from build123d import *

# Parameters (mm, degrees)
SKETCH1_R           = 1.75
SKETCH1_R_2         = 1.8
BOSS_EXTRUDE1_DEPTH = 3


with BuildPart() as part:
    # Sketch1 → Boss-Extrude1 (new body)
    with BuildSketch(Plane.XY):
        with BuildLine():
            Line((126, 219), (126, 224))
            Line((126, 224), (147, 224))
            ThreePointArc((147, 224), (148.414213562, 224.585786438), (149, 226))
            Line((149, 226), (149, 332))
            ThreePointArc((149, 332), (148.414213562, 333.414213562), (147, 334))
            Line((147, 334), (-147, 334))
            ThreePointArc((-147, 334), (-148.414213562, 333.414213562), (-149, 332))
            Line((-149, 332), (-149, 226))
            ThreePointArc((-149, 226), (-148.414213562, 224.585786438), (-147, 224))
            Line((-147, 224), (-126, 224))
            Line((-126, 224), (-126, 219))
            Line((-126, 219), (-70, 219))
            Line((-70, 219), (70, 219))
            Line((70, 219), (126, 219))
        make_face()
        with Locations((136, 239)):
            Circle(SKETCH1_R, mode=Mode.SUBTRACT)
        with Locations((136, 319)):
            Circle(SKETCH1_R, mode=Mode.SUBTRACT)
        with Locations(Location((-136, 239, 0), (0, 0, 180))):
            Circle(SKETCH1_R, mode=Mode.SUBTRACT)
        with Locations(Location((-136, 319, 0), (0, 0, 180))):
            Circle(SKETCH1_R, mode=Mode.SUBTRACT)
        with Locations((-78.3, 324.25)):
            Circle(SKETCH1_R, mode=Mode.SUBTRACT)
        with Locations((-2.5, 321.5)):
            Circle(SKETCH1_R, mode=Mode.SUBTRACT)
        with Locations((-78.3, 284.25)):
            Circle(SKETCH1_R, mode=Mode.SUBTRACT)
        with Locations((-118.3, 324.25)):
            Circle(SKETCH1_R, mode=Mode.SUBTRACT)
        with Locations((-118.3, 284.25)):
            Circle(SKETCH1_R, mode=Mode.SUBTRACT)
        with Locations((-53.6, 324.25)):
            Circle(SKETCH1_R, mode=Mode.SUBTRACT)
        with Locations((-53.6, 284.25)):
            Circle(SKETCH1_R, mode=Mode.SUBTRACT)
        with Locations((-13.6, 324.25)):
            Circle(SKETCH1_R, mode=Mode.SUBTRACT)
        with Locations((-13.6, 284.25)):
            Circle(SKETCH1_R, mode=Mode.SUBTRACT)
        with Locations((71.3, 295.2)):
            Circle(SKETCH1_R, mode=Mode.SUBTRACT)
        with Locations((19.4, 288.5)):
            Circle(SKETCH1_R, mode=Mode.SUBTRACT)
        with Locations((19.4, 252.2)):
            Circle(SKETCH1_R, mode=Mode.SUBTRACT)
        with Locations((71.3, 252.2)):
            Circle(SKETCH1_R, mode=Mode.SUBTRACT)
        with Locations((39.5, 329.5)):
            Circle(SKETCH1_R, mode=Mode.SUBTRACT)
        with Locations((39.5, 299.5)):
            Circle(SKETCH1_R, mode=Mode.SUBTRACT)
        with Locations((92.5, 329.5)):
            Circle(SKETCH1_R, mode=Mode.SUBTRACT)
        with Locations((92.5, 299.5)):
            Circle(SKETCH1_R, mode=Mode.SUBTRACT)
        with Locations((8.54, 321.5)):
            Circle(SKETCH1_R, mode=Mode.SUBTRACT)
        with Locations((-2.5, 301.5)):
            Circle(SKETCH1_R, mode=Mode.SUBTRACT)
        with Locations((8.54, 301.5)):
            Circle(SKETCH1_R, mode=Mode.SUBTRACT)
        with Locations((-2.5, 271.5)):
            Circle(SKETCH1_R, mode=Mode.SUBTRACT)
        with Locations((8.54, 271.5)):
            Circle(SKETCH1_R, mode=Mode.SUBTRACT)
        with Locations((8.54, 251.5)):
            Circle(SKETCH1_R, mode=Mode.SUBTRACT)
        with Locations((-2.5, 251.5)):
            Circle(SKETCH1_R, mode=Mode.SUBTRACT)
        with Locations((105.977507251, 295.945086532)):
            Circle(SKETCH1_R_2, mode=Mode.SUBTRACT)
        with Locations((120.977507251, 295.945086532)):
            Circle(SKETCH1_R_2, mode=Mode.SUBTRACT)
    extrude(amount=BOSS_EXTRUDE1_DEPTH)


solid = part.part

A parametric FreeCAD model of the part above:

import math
import FreeCAD as App
import Part
import Sketcher
Q = App.Units.Quantity

doc = App.newDocument("Part")
body = doc.addObject("PartDesign::Body", "Body")

# Sketch on XY plane
sketch1 = body.newObject("Sketcher::SketchObject", "Sketch")
sketch1.AttachmentSupport = (doc.getObject("XY_Plane"), [""])
sketch1.MapMode = "FlatFace"
sketch1.addGeometry(Part.LineSegment(App.Vector(126, 219, 0), App.Vector(126, 224, 0)), False)
sketch1.addGeometry(Part.LineSegment(App.Vector(126, 224, 0), App.Vector(147, 224, 0)), False)
sketch1.addGeometry(Part.ArcOfCircle(Part.Circle(App.Vector(147, 226, 0), App.Vector(0, 0, 1), 2), math.radians(-90), math.radians(0)), False)
sketch1.addGeometry(Part.LineSegment(App.Vector(149, 226, 0), App.Vector(149, 332, 0)), False)
sketch1.addGeometry(Part.ArcOfCircle(Part.Circle(App.Vector(147, 332, 0), App.Vector(0, 0, 1), 2), math.radians(0), math.radians(90)), False)
sketch1.addGeometry(Part.LineSegment(App.Vector(147, 334, 0), App.Vector(-147, 334, 0)), False)
sketch1.addGeometry(Part.ArcOfCircle(Part.Circle(App.Vector(-147, 332, 0), App.Vector(0, 0, 1), 2), math.radians(90), math.radians(180)), False)
sketch1.addGeometry(Part.LineSegment(App.Vector(-149, 332, 0), App.Vector(-149, 226, 0)), False)
sketch1.addGeometry(Part.ArcOfCircle(Part.Circle(App.Vector(-147, 226, 0), App.Vector(0, 0, 1), 2), math.radians(-180), math.radians(-90)), False)
sketch1.addGeometry(Part.LineSegment(App.Vector(-147, 224, 0), App.Vector(-126, 224, 0)), False)
sketch1.addGeometry(Part.LineSegment(App.Vector(-126, 224, 0), App.Vector(-126, 219, 0)), False)
sketch1.addGeometry(Part.LineSegment(App.Vector(-126, 219, 0), App.Vector(126, 219, 0)), False)
sketch1.addGeometry(Part.Circle(App.Vector(-136, 239, 0), App.Vector(0, 0, 1), 1.8), False)
sketch1.addGeometry(Part.Circle(App.Vector(-2.5, 251.5, 0), App.Vector(0, 0, 1), 1.8), False)
sketch1.addGeometry(Part.Circle(App.Vector(-2.5, 271.5, 0), App.Vector(0, 0, 1), 1.8), False)
sketch1.addGeometry(Part.Circle(App.Vector(8.5, 251.5, 0), App.Vector(0, 0, 1), 1.8), False)
sketch1.addGeometry(Part.Circle(App.Vector(19.4, 252.2, 0), App.Vector(0, 0, 1), 1.8), False)
sketch1.addGeometry(Part.Circle(App.Vector(136, 239, 0), App.Vector(0, 0, 1), 1.8), False)
sketch1.addGeometry(Part.Circle(App.Vector(71.3, 252.2, 0), App.Vector(0, 0, 1), 1.8), False)
sketch1.addGeometry(Part.Circle(App.Vector(8.5, 271.5, 0), App.Vector(0, 0, 1), 1.8), False)
sketch1.addGeometry(Part.Circle(App.Vector(-118.3, 284.2, 0), App.Vector(0, 0, 1), 1.8), False)
sketch1.addGeometry(Part.Circle(App.Vector(-78.3, 284.2, 0), App.Vector(0, 0, 1), 1.8), False)
sketch1.addGeometry(Part.Circle(App.Vector(-53.6, 284.2, 0), App.Vector(0, 0, 1), 1.8), False)
sketch1.addGeometry(Part.Circle(App.Vector(-13.6, 284.2, 0), App.Vector(0, 0, 1), 1.8), False)
sketch1.addGeometry(Part.Circle(App.Vector(-2.5, 301.5, 0), App.Vector(0, 0, 1), 1.8), False)
sketch1.addGeometry(Part.Circle(App.Vector(-136, 319, 0), App.Vector(0, 0, 1), 1.8), False)
sketch1.addGeometry(Part.Circle(App.Vector(-118.3, 324.2, 0), App.Vector(0, 0, 1), 1.8), False)
sketch1.addGeometry(Part.Circle(App.Vector(-78.3, 324.2, 0), App.Vector(0, 0, 1), 1.8), False)
sketch1.addGeometry(Part.Circle(App.Vector(-53.6, 324.2, 0), App.Vector(0, 0, 1), 1.8), False)
sketch1.addGeometry(Part.Circle(App.Vector(-2.5, 321.5, 0), App.Vector(0, 0, 1), 1.8), False)
sketch1.addGeometry(Part.Circle(App.Vector(-13.6, 324.2, 0), App.Vector(0, 0, 1), 1.8), False)
sketch1.addGeometry(Part.Circle(App.Vector(19.4, 288.5, 0), App.Vector(0, 0, 1), 1.8), False)
sketch1.addGeometry(Part.Circle(App.Vector(8.5, 301.5, 0), App.Vector(0, 0, 1), 1.8), False)
sketch1.addGeometry(Part.Circle(App.Vector(39.5, 299.5, 0), App.Vector(0, 0, 1), 1.8), False)
sketch1.addGeometry(Part.Circle(App.Vector(71.3, 295.2, 0), App.Vector(0, 0, 1), 1.8), False)
sketch1.addGeometry(Part.Circle(App.Vector(106, 295.9, 0), App.Vector(0, 0, 1), 1.8), False)
sketch1.addGeometry(Part.Circle(App.Vector(121, 295.9, 0), App.Vector(0, 0, 1), 1.8), False)
sketch1.addGeometry(Part.Circle(App.Vector(92.5, 299.5, 0), App.Vector(0, 0, 1), 1.8), False)
sketch1.addGeometry(Part.Circle(App.Vector(8.5, 321.5, 0), App.Vector(0, 0, 1), 1.8), False)
sketch1.addGeometry(Part.Circle(App.Vector(39.5, 329.5, 0), App.Vector(0, 0, 1), 1.8), False)
sketch1.addGeometry(Part.Circle(App.Vector(136, 319, 0), App.Vector(0, 0, 1), 1.8), False)
sketch1.addGeometry(Part.Circle(App.Vector(92.5, 329.5, 0), App.Vector(0, 0, 1), 1.8), False)
sketch1.addConstraint(Sketcher.Constraint("Coincident", 0, 2, 1, 1))
sketch1.addConstraint(Sketcher.Constraint("Tangent", 1, 2, 2, 1))
sketch1.addConstraint(Sketcher.Constraint("Tangent", 2, 2, 3, 1))
sketch1.addConstraint(Sketcher.Constraint("Tangent", 3, 2, 4, 1))
sketch1.addConstraint(Sketcher.Constraint("Tangent", 4, 2, 5, 1))
sketch1.addConstraint(Sketcher.Constraint("Tangent", 5, 2, 6, 1))
sketch1.addConstraint(Sketcher.Constraint("Tangent", 6, 2, 7, 1))
sketch1.addConstraint(Sketcher.Constraint("Tangent", 7, 2, 8, 1))
sketch1.addConstraint(Sketcher.Constraint("Tangent", 8, 2, 9, 1))
sketch1.addConstraint(Sketcher.Constraint("Coincident", 9, 2, 10, 1))
sketch1.addConstraint(Sketcher.Constraint("Coincident", 10, 2, 11, 1))
sketch1.addConstraint(Sketcher.Constraint("Coincident", 11, 2, 0, 1))
sketch1.addConstraint(Sketcher.Constraint("Vertical", 0))
sketch1.addConstraint(Sketcher.Constraint("Horizontal", 1))
sketch1.addConstraint(Sketcher.Constraint("Vertical", 3))
sketch1.addConstraint(Sketcher.Constraint("Horizontal", 5))
sketch1.addConstraint(Sketcher.Constraint("Vertical", 7))
sketch1.addConstraint(Sketcher.Constraint("Horizontal", 9))
sketch1.addConstraint(Sketcher.Constraint("Vertical", 10))
sketch1.addConstraint(Sketcher.Constraint("Horizontal", 11))
sketch1.addConstraint(Sketcher.Constraint("Equal", 2, 4))
sketch1.addConstraint(Sketcher.Constraint("Equal", 4, 6))
sketch1.addConstraint(Sketcher.Constraint("Equal", 6, 8))
sketch1.addConstraint(Sketcher.Constraint("Equal", 12, 13))
sketch1.addConstraint(Sketcher.Constraint("Equal", 13, 14))
sketch1.addConstraint(Sketcher.Constraint("Equal", 14, 15))
sketch1.addConstraint(Sketcher.Constraint("Equal", 15, 16))
sketch1.addConstraint(Sketcher.Constraint("Equal", 16, 17))
sketch1.addConstraint(Sketcher.Constraint("Equal", 17, 18))
sketch1.addConstraint(Sketcher.Constraint("Equal", 18, 19))
sketch1.addConstraint(Sketcher.Constraint("Equal", 19, 20))
sketch1.addConstraint(Sketcher.Constraint("Equal", 20, 21))
sketch1.addConstraint(Sketcher.Constraint("Equal", 21, 22))
sketch1.addConstraint(Sketcher.Constraint("Equal", 22, 23))
sketch1.addConstraint(Sketcher.Constraint("Equal", 23, 24))
sketch1.addConstraint(Sketcher.Constraint("Equal", 24, 25))
sketch1.addConstraint(Sketcher.Constraint("Equal", 25, 26))
sketch1.addConstraint(Sketcher.Constraint("Equal", 26, 27))
sketch1.addConstraint(Sketcher.Constraint("Equal", 27, 28))
sketch1.addConstraint(Sketcher.Constraint("Equal", 28, 29))
sketch1.addConstraint(Sketcher.Constraint("Equal", 29, 30))
sketch1.addConstraint(Sketcher.Constraint("Equal", 30, 31))
sketch1.addConstraint(Sketcher.Constraint("Equal", 31, 32))
sketch1.addConstraint(Sketcher.Constraint("Equal", 32, 33))
sketch1.addConstraint(Sketcher.Constraint("Equal", 33, 34))
sketch1.addConstraint(Sketcher.Constraint("Equal", 35, 36))
sketch1.addConstraint(Sketcher.Constraint("Equal", 34, 37))
sketch1.addConstraint(Sketcher.Constraint("Equal", 37, 38))
sketch1.addConstraint(Sketcher.Constraint("Equal", 38, 39))
sketch1.addConstraint(Sketcher.Constraint("Equal", 39, 40))
sketch1.addConstraint(Sketcher.Constraint("Equal", 40, 41))
sketch1.addConstraint(Sketcher.Constraint("Symmetric", 2, 3, 8, 3, -2))
sketch1.addConstraint(Sketcher.Constraint("Symmetric", 12, 3, 17, 3, -2))
sketch1.addConstraint(Sketcher.Constraint("Symmetric", 25, 3, 40, 3, -2))
sketch1.addConstraint(Sketcher.Constraint("Horizontal", 13, 3, 15, 3))
sketch1.addConstraint(Sketcher.Constraint("Horizontal", 16, 3, 18, 3))
sketch1.addConstraint(Sketcher.Constraint("Horizontal", 14, 3, 19, 3))
sketch1.addConstraint(Sketcher.Constraint("Horizontal", 20, 3, 21, 3))
sketch1.addConstraint(Sketcher.Constraint("Horizontal", 21, 3, 22, 3))
sketch1.addConstraint(Sketcher.Constraint("Horizontal", 22, 3, 23, 3))
sketch1.addConstraint(Sketcher.Constraint("Horizontal", 26, 3, 27, 3))
sketch1.addConstraint(Sketcher.Constraint("Horizontal", 27, 3, 28, 3))
sketch1.addConstraint(Sketcher.Constraint("Horizontal", 28, 3, 30, 3))
sketch1.addConstraint(Sketcher.Constraint("Horizontal", 24, 3, 32, 3))
sketch1.addConstraint(Sketcher.Constraint("Horizontal", 35, 3, 36, 3))
sketch1.addConstraint(Sketcher.Constraint("Horizontal", 33, 3, 37, 3))
sketch1.addConstraint(Sketcher.Constraint("Horizontal", 29, 3, 38, 3))
sketch1.addConstraint(Sketcher.Constraint("Horizontal", 39, 3, 41, 3))
sketch1.addConstraint(Sketcher.Constraint("Vertical", 13, 3, 14, 3))
sketch1.addConstraint(Sketcher.Constraint("Vertical", 15, 3, 19, 3))
sketch1.addConstraint(Sketcher.Constraint("Vertical", 14, 3, 24, 3))
sketch1.addConstraint(Sketcher.Constraint("Vertical", 12, 3, 25, 3))
sketch1.addConstraint(Sketcher.Constraint("Vertical", 20, 3, 26, 3))
sketch1.addConstraint(Sketcher.Constraint("Vertical", 21, 3, 27, 3))
sketch1.addConstraint(Sketcher.Constraint("Vertical", 22, 3, 28, 3))
sketch1.addConstraint(Sketcher.Constraint("Vertical", 24, 3, 29, 3))
sketch1.addConstraint(Sketcher.Constraint("Vertical", 23, 3, 30, 3))
sketch1.addConstraint(Sketcher.Constraint("Vertical", 16, 3, 31, 3))
sketch1.addConstraint(Sketcher.Constraint("Vertical", 19, 3, 32, 3))
sketch1.addConstraint(Sketcher.Constraint("Vertical", 18, 3, 34, 3))
sketch1.addConstraint(Sketcher.Constraint("Vertical", 32, 3, 38, 3))
sketch1.addConstraint(Sketcher.Constraint("Vertical", 33, 3, 39, 3))
sketch1.addConstraint(Sketcher.Constraint("Vertical", 37, 3, 41, 3))
sketch1.addConstraint(Sketcher.Constraint("Equal", 1, 9))
sketch1.addConstraint(Sketcher.Constraint("Radius", 2, Q("2 mm")))
sketch1.addConstraint(Sketcher.Constraint("Diameter", 12, Q("3.5 mm")))
sketch1.addConstraint(Sketcher.Constraint("Diameter", 35, Q("3.6 mm")))
sketch1.addConstraint(Sketcher.Constraint("DistanceX", 1, 1, 1, 2, Q("21 mm")))
sketch1.addConstraint(Sketcher.Constraint("DistanceX", 5, 2, 5, 1, Q("294 mm")))
sketch1.addConstraint(Sketcher.Constraint("DistanceY", 0, 1, 0, 2, Q("5 mm")))
sketch1.addConstraint(Sketcher.Constraint("DistanceY", 3, 1, 3, 2, Q("106 mm")))
sketch1.addConstraint(Sketcher.Constraint("DistanceY", -1, 1, 2, 3, Q("226 mm")))
sketch1.addConstraint(Sketcher.Constraint("DistanceX", 12, 3, -1, 1, Q("136 mm")))
sketch1.addConstraint(Sketcher.Constraint("DistanceY", -1, 1, 12, 3, Q("239 mm")))
sketch1.addConstraint(Sketcher.Constraint("DistanceY", -1, 1, 25, 3, Q("319 mm")))
sketch1.addConstraint(Sketcher.Constraint("DistanceY", 13, 3, 14, 3, Q("20 mm")))
sketch1.addConstraint(Sketcher.Constraint("DistanceX", 20, 3, 21, 3, Q("40 mm")))
sketch1.addConstraint(Sketcher.Constraint("DistanceX", 22, 3, 23, 3, Q("40 mm")))
sketch1.addConstraint(Sketcher.Constraint("DistanceY", 14, 3, 24, 3, Q("30 mm")))
sketch1.addConstraint(Sketcher.Constraint("DistanceY", 20, 3, 26, 3, Q("40 mm")))
sketch1.addConstraint(Sketcher.Constraint("DistanceY", 24, 3, 29, 3, Q("20 mm")))
sketch1.addConstraint(Sketcher.Constraint("DistanceY", 19, 3, 31, 3, Q("17 mm")))
sketch1.addConstraint(Sketcher.Constraint("DistanceX", 23, 3, 31, 3, Q("33 mm")))
sketch1.addConstraint(Sketcher.Constraint("DistanceY", 31, 3, 33, 3, Q("11 mm")))
sketch1.addConstraint(Sketcher.Constraint("DistanceX", 24, 3, 33, 3, Q("42 mm")))
sketch1.addConstraint(Sketcher.Constraint("DistanceY", 18, 3, 34, 3, Q("43 mm")))
sketch1.addConstraint(Sketcher.Constraint("DistanceX", 35, 3, 36, 3, Q("15 mm")))
sketch1.addConstraint(Sketcher.Constraint("DistanceX", 33, 3, 37, 3, Q("53 mm")))
sketch1.addConstraint(Sketcher.Constraint("DistanceY", 33, 3, 39, 3, Q("30 mm")))
sketch1.addConstraint(Sketcher.Constraint("DistanceX", 13, 3, -1, 1, Q("2.5 mm")))
sketch1.addConstraint(Sketcher.Constraint("DistanceY", -1, 1, 13, 3, Q("251.5 mm")))
sketch1.addConstraint(Sketcher.Constraint("DistanceX", -1, 1, 16, 3, Q("19.4 mm")))
sketch1.addConstraint(Sketcher.Constraint("DistanceY", -1, 1, 16, 3, Q("252.2 mm")))
sketch1.addConstraint(Sketcher.Constraint("DistanceX", -1, 1, 18, 3, Q("71.3 mm")))
sketch1.addConstraint(Sketcher.Constraint("DistanceX", 20, 3, -1, 1, Q("118.3 mm")))
sketch1.addConstraint(Sketcher.Constraint("DistanceX", -1, 1, 15, 3, Q("8.54 mm")))
sketch1.addConstraint(Sketcher.Constraint("DistanceY", -1, 1, 20, 3, Q("284.25 mm")))
sketch1.addConstraint(Sketcher.Constraint("DistanceX", -1, 1, 35, 3, Q("105.977507 mm")))
sketch1.addConstraint(Sketcher.Constraint("DistanceY", -1, 1, 35, 3, Q("295.945087 mm")))
pad1 = body.newObject("PartDesign::Pad", "Pad")
pad1.Profile = sketch1
pad1.Length = 3

doc.recompute()
